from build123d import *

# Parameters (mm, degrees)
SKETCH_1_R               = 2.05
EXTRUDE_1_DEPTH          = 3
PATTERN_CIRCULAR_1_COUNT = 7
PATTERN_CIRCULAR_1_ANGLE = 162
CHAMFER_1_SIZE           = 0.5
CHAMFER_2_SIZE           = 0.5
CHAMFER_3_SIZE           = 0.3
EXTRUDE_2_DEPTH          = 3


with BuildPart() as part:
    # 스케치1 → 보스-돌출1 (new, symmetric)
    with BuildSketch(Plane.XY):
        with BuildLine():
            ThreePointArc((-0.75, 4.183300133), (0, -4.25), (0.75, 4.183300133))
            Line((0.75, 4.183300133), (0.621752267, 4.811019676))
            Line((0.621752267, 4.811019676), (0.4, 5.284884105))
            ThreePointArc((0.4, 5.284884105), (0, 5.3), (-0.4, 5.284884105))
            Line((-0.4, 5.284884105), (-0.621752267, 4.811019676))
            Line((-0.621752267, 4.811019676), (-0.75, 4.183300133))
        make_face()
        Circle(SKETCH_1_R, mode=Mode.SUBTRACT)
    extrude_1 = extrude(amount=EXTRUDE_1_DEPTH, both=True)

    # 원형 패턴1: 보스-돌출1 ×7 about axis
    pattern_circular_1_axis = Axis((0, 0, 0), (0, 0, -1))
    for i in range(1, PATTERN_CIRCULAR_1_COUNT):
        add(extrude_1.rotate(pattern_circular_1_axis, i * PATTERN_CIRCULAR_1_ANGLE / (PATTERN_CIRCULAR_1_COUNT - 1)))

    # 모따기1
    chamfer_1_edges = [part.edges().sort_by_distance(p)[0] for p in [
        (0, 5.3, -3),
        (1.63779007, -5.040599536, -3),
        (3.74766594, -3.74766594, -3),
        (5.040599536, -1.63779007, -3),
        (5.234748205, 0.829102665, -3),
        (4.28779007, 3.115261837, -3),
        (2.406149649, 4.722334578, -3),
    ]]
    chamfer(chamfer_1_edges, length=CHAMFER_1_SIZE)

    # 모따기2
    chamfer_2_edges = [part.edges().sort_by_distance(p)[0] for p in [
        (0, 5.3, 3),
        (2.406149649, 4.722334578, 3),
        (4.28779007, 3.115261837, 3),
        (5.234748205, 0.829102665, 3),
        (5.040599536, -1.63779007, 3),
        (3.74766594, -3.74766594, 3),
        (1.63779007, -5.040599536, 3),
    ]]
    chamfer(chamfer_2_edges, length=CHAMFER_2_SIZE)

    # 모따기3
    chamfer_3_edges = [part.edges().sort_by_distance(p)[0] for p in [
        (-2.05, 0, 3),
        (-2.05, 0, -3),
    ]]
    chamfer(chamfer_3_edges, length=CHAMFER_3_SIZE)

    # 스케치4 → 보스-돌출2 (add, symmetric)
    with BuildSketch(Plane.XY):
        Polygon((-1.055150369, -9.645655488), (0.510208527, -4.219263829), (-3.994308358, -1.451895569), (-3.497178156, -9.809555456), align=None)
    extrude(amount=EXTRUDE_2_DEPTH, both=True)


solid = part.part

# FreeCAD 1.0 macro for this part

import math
import FreeCAD as App
import Part
import Sketcher
from FreeCAD import Vector
Q = App.Units.Quantity


def edges_at(feature, points):
    """Names of the edges that pass closest to the given points."""
    edges = feature.Shape.Edges
    near = lambda p: min(range(len(edges)), key=lambda i: edges[i].distToShape(Part.Vertex(*p))[0])
    return sorted({f"Edge{near(p) + 1}" for p in points})

doc = App.newDocument("Part")
params = doc.addObject("Spreadsheet::Sheet", "Params")
for row, (alias, value) in enumerate([
    ("sketch1_diameter", "4.1 mm"),
    ("sketch1_radius", "5.3 mm"),
    ("sketch1_radius2", "4.25 mm"),
    ("pad1_length", "6 mm"),
    ("chamfer_size", "0.5 mm"),
    ("chamfer2_size", "0.5 mm"),
    ("chamfer3_size", "0.3 mm"),
    ("pad2_length", "6 mm"),
], start=1):
    params.set(f"A{row}", alias)
    params.set(f"B{row}", "=" + value)
    params.setAlias(f"B{row}", alias)

body = doc.addObject("PartDesign::Body", "Body")

# Sketch on XY plane
sketch1 = body.newObject("Sketcher::SketchObject", "Sketch")
sketch1.AttachmentSupport = (doc.getObject("XY_Plane"), [""])
sketch1.MapMode = "FlatFace"
sketch1.addGeometry(Part.ArcOfCircle(Part.Circle(Vector(0, 0, 0), Vector(0, 0, 1), 4.25), math.radians(100.164249), math.radians(439.835751)), False)
sketch1.addGeometry(Part.LineSegment(Vector(0.75, 4.1833, 0), Vector(0.621752, 4.81102, 0)), False)
sketch1.addGeometry(Part.LineSegment(Vector(0.621752, 4.81102, 0), Vector(0.4, 5.284884, 0)), False)
sketch1.addGeometry(Part.ArcOfCircle(Part.Circle(Vector(0, 0, 0), Vector(0, 0, 1), 5.3), math.radians(85.671675), math.radians(94.328325)), False)
sketch1.addGeometry(Part.LineSegment(Vector(-0.4, 5.284884, 0), Vector(-0.621752, 4.81102, 0)), False)
sketch1.addGeometry(Part.LineSegment(Vector(-0.621752, 4.81102, 0), Vector(-0.75, 4.1833, 0)), False)
sketch1.addGeometry(Part.Circle(Vector(0, 0, 0), Vector(0, 0, 1), 2.05), False)
sketch1.addConstraint(Sketcher.Constraint("Coincident", 0, 2, 1, 1))
sketch1.addConstraint(Sketcher.Constraint("Coincident", 1, 2, 2, 1))
sketch1.addConstraint(Sketcher.Constraint("Coincident", 2, 2, 3, 1))
sketch1.addConstraint(Sketcher.Constraint("Coincident", 3, 2, 4, 1))
sketch1.addConstraint(Sketcher.Constraint("Coincident", 4, 2, 5, 1))
sketch1.addConstraint(Sketcher.Constraint("Coincident", 5, 2, 0, 1))
sketch1.addConstraint(Sketcher.Constraint("Coincident", 0, 3, -1, 1))
sketch1.addConstraint(Sketcher.Constraint("Coincident", 3, 3, -1, 1))
sketch1.addConstraint(Sketcher.Constraint("Coincident", 6, 3, -1, 1))
sketch1.addConstraint(Sketcher.Constraint("Symmetric", 1, 2, 4, 2, -2))
sketch1.addConstraint(Sketcher.Constraint("Horizontal", 2, 2, 3, 2))
sketch1.addConstraint(Sketcher.Constraint("Horizontal", 0, 2, 5, 2))
sketch1.addConstraint(Sketcher.Constraint("Diameter", 6, Q("4.1 mm")))
sketch1.addConstraint(Sketcher.Constraint("Radius", 3, Q("5.3 mm")))
sketch1.addConstraint(Sketcher.Constraint("Radius", 0, Q("4.25 mm")))
sketch1.addConstraint(Sketcher.Constraint("DistanceX", -1, 1, 2, 2, Q("0.4 mm")))
sketch1.addConstraint(Sketcher.Constraint("DistanceX", 5, 2, 0, 2, Q("1.5 mm")))
sketch1.addConstraint(Sketcher.Constraint("DistanceY", -1, 1, 1, 2, Q("4.81102 mm")))
sketch1.addConstraint(Sketcher.Constraint("Distance", 1, Q("0.640687 mm")))
sketch1.setExpression("Constraints[12]", "Params.sketch1_diameter")
sketch1.setExpression("Constraints[13]", "Params.sketch1_radius")
sketch1.setExpression("Constraints[14]", "Params.sketch1_radius2")
pad1 = body.newObject("PartDesign::Pad", "Pad")
pad1.Profile = sketch1
pad1.setExpression("Length", "Params.pad1_length")
pad1.Midplane = True
doc.recompute()

polarpattern = body.newObject("PartDesign::PolarPattern", "PolarPattern")
polarpattern.Originals = [pad1]
polarpattern.Axis = (doc.getObject("Z_Axis"), [""])
polarpattern.Angle = 162
polarpattern.Occurrences = 7
polarpattern.Reversed = True
body.Tip = polarpattern
doc.recompute()

chamfer = body.newObject("PartDesign::Chamfer", "Chamfer")
chamfer.Base = (polarpattern, edges_at(polarpattern, [
    (0, 5.3, -3),
    (1.638, -5.041, -3),
    (3.748, -3.748, -3),
    (5.041, -1.638, -3),
    (5.235, 0.829, -3),
    (4.288, 3.115, -3),
    (2.406, 4.722, -3),
]))
chamfer.setExpression("Size", "Params.chamfer_size")
doc.recompute()

chamfer2 = body.newObject("PartDesign::Chamfer", "Chamfer001")
chamfer2.Base = (chamfer, edges_at(chamfer, [
    (0, 5.3, 3),
    (2.406, 4.722, 3),
    (4.288, 3.115, 3),
    (5.235, 0.829, 3),
    (5.041, -1.638, 3),
    (3.748, -3.748, 3),
    (1.638, -5.041, 3),
]))
chamfer2.setExpression("Size", "Params.chamfer2_size")
doc.recompute()

chamfer3 = body.newObject("PartDesign::Chamfer", "Chamfer002")
chamfer3.Base = (chamfer2, edges_at(chamfer2, [(-2.05, 0, 3), (-2.05, 0, -3)]))
chamfer3.setExpression("Size", "Params.chamfer3_size")

# Sketch on XY plane
sketch2 = body.newObject("Sketcher::SketchObject", "Sketch001")
sketch2.AttachmentSupport = (doc.getObject("XY_Plane"), [""])
sketch2.MapMode = "FlatFace"
sketch2.addGeometry(Part.LineSegment(Vector(-1.05515, -9.645655, 0), Vector(0.510209, -4.219264, 0)), False)
sketch2.addGeometry(Part.LineSegment(Vector(0.510209, -4.219264, 0), Vector(-3.994308, -1.451896, 0)), False)
sketch2.addGeometry(Part.LineSegment(Vector(-3.994308, -1.451896, 0), Vector(-3.497178, -9.809555, 0)), False)
sketch2.addGeometry(Part.LineSegment(Vector(-3.497178, -9.809555, 0), Vector(-1.05515, -9.645655, 0)), False)
sketch2.addConstraint(Sketcher.Constraint("Coincident", 0, 2, 1, 1))
sketch2.addConstraint(Sketcher.Constraint("Coincident", 1, 2, 2, 1))
sketch2.addConstraint(Sketcher.Constraint("Coincident", 2, 2, 3, 1))
sketch2.addConstraint(Sketcher.Constraint("Coincident", 3, 2, 0, 1))
sketch2.addConstraint(Sketcher.Constraint("DistanceY", 2, 2, 3, 2, Q("0.1639 mm")))
sketch2.addConstraint(Sketcher.Constraint("Distance", 0, Q("5.647661 mm")))
sketch2.addConstraint(Sketcher.Constraint("Distance", 1, Q("5.286681 mm")))
sketch2.addConstraint(Sketcher.Constraint("Distance", 2, Q("8.372432 mm")))
sketch2.addConstraint(Sketcher.Constraint("Distance", 3, Q("2.447522 mm")))
sketch2.addConstraint(Sketcher.Constraint("DistanceX", -1, 1, 0, 2, Q("0.510209 mm")))
sketch2.addConstraint(Sketcher.Constraint("DistanceX", 1, 2, -1, 1, Q("3.994308 mm")))
sketch2.addConstraint(Sketcher.Constraint("DistanceY", 0, 2, -1, 1, Q("4.219264 mm")))
pad2 = body.newObject("PartDesign::Pad", "Pad001")
pad2.Profile = sketch2
pad2.setExpression("Length", "Params.pad2_length")
pad2.Midplane = True

doc.recompute()
